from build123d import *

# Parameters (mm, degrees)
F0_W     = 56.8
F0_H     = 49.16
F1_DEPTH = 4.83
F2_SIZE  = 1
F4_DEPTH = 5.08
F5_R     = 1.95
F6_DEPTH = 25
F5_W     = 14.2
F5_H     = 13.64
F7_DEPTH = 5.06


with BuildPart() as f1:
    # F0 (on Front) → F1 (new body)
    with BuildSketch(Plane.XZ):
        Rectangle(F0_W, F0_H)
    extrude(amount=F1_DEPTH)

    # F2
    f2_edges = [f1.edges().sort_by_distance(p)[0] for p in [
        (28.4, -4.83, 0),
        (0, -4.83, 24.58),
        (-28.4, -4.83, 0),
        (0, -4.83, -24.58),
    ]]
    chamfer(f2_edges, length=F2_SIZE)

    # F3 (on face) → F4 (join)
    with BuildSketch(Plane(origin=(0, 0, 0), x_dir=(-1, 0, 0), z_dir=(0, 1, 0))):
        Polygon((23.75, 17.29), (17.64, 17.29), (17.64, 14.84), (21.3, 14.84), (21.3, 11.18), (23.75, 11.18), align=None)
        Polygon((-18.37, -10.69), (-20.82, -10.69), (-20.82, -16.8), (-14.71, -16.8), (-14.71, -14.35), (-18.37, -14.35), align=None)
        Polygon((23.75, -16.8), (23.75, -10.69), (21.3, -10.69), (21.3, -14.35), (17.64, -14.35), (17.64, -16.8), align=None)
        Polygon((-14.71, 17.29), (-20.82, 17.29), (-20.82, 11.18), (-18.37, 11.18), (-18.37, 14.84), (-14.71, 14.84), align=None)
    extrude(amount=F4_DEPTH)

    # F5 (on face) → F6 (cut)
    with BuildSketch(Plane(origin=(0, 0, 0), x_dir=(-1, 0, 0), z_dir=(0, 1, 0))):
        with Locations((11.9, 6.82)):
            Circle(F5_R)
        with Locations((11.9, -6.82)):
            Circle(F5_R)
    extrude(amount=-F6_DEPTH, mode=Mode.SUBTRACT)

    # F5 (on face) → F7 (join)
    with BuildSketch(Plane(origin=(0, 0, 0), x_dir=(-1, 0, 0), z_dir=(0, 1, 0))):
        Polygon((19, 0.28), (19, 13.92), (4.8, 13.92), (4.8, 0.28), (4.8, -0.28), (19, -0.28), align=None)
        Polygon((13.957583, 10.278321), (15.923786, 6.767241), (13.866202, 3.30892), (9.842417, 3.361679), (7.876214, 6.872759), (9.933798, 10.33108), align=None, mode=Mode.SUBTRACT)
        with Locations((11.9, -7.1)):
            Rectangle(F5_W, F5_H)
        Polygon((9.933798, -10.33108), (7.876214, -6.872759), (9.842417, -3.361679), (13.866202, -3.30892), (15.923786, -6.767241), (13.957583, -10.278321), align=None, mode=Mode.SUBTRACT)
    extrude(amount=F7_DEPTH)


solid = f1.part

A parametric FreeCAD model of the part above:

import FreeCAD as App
import Part
import Sketcher


def edges_at(feature, points):
    """Names of the edges that pass closest to the given points."""
    edges = feature.Shape.Edges
    near = lambda p: min(range(len(edges)), key=lambda i: edges[i].distToShape(Part.Vertex(*p))[0])
    return sorted({f"Edge{near(p) + 1}" for p in points})

doc = App.newDocument("Part")
body = doc.addObject("PartDesign::Body", "Body")

# Sketch on XZ plane
sketch1 = body.newObject("Sketcher::SketchObject", "Sketch")
sketch1.AttachmentSupport = (doc.getObject("XZ_Plane"), [""])
sketch1.MapMode = "FlatFace"
sketch1.addGeometry([
    Part.LineSegment(App.Vector(-28.4, 24.58, 0), App.Vector(-28.4, -24.58, 0)),
    Part.LineSegment(App.Vector(-28.4, -24.58, 0), App.Vector(28.4, -24.58, 0)),
    Part.LineSegment(App.Vector(28.4, -24.58, 0), App.Vector(28.4, 24.58, 0)),
    Part.LineSegment(App.Vector(28.4, 24.58, 0), App.Vector(-28.4, 24.58, 0)),
], False)
sketch1.addConstraint([
    Sketcher.Constraint("Coincident", 0, 2, 1, 1),
    Sketcher.Constraint("Coincident", 1, 2, 2, 1),
    Sketcher.Constraint("Coincident", 2, 2, 3, 1),
    Sketcher.Constraint("Coincident", 3, 2, 0, 1),
    Sketcher.Constraint("Vertical", 0),
    Sketcher.Constraint("Horizontal", 1),
    Sketcher.Constraint("Vertical", 2),
    Sketcher.Constraint("Horizontal", 3),
    Sketcher.Constraint("Symmetric", 0, 2, 2, 2, -1, 1),
    Sketcher.Constraint("DistanceX", 1, 1, 1, 2, 56.8),
    Sketcher.Constraint("DistanceY", 0, 2, 0, 1, 49.16),
])
pad1 = body.newObject("PartDesign::Pad", "Pad")
pad1.Profile = sketch1
pad1.Length = 4.83
doc.recompute()

chamfer = body.newObject("PartDesign::Chamfer", "Chamfer")
chamfer.Base = (pad1, edges_at(pad1, [
    (28.4, -4.83, 0),
    (0, -4.83, 24.58),
    (-28.4, -4.83, 0),
    (0, -4.83, -24.58),
]))
chamfer.Size = 1

# Sketch on XZ plane
sketch2 = body.newObject("Sketcher::SketchObject", "Sketch001")
sketch2.AttachmentSupport = (doc.getObject("XZ_Plane"), [""])
sketch2.MapMode = "FlatFace"
sketch2.addGeometry([
    Part.LineSegment(App.Vector(-23.75, 17.29, 0), App.Vector(-17.64, 17.29, 0)),  # 0
    Part.LineSegment(App.Vector(-17.64, 17.29, 0), App.Vector(-17.64, 14.84, 0)),  # 1
    Part.LineSegment(App.Vector(-17.64, 14.84, 0), App.Vector(-21.3, 14.84, 0)),  # 2
    Part.LineSegment(App.Vector(-21.3, 14.84, 0), App.Vector(-21.3, 11.18, 0)),  # 3
    Part.LineSegment(App.Vector(-21.3, 11.18, 0), App.Vector(-23.75, 11.18, 0)),  # 4
    Part.LineSegment(App.Vector(-23.75, 11.18, 0), App.Vector(-23.75, 17.29, 0)),  # 5
    Part.LineSegment(App.Vector(18.37, -10.69, 0), App.Vector(20.82, -10.69, 0)),  # 6
    Part.LineSegment(App.Vector(20.82, -10.69, 0), App.Vector(20.82, -16.8, 0)),  # 7
    Part.LineSegment(App.Vector(20.82, -16.8, 0), App.Vector(14.71, -16.8, 0)),  # 8
    Part.LineSegment(App.Vector(14.71, -16.8, 0), App.Vector(14.71, -14.35, 0)),  # 9
    Part.LineSegment(App.Vector(14.71, -14.35, 0), App.Vector(18.37, -14.35, 0)),  # 10
    Part.LineSegment(App.Vector(18.37, -14.35, 0), App.Vector(18.37, -10.69, 0)),  # 11
    Part.LineSegment(App.Vector(-23.75, -16.8, 0), App.Vector(-23.75, -10.69, 0)),  # 12
    Part.LineSegment(App.Vector(-23.75, -10.69, 0), App.Vector(-21.3, -10.69, 0)),  # 13
    Part.LineSegment(App.Vector(-21.3, -10.69, 0), App.Vector(-21.3, -14.35, 0)),  # 14
    Part.LineSegment(App.Vector(-21.3, -14.35, 0), App.Vector(-17.64, -14.35, 0)),  # 15
    Part.LineSegment(App.Vector(-17.64, -14.35, 0), App.Vector(-17.64, -16.8, 0)),  # 16
    Part.LineSegment(App.Vector(-17.64, -16.8, 0), App.Vector(-23.75, -16.8, 0)),  # 17
    Part.LineSegment(App.Vector(14.71, 17.29, 0), App.Vector(20.82, 17.29, 0)),  # 18
    Part.LineSegment(App.Vector(20.82, 17.29, 0), App.Vector(20.82, 11.18, 0)),  # 19
    Part.LineSegment(App.Vector(20.82, 11.18, 0), App.Vector(18.37, 11.18, 0)),  # 20
    Part.LineSegment(App.Vector(18.37, 11.18, 0), App.Vector(18.37, 14.84, 0)),  # 21
    Part.LineSegment(App.Vector(18.37, 14.84, 0), App.Vector(14.71, 14.84, 0)),  # 22
    Part.LineSegment(App.Vector(14.71, 14.84, 0), App.Vector(14.71, 17.29, 0)),  # 23
], False)
sketch2.addConstraint([
    Sketcher.Constraint("Coincident", 0, 2, 1, 1),
    Sketcher.Constraint("Coincident", 1, 2, 2, 1),
    Sketcher.Constraint("Coincident", 2, 2, 3, 1),
    Sketcher.Constraint("Coincident", 3, 2, 4, 1),
    Sketcher.Constraint("Coincident", 4, 2, 5, 1),
    Sketcher.Constraint("Coincident", 5, 2, 0, 1),
    Sketcher.Constraint("Coincident", 6, 2, 7, 1),
    Sketcher.Constraint("Coincident", 7, 2, 8, 1),
    Sketcher.Constraint("Coincident", 8, 2, 9, 1),
    Sketcher.Constraint("Coincident", 9, 2, 10, 1),
    Sketcher.Constraint("Coincident", 10, 2, 11, 1),
    Sketcher.Constraint("Coincident", 11, 2, 6, 1),
    Sketcher.Constraint("Coincident", 12, 2, 13, 1),
    Sketcher.Constraint("Coincident", 13, 2, 14, 1),
    Sketcher.Constraint("Coincident", 14, 2, 15, 1),
    Sketcher.Constraint("Coincident", 15, 2, 16, 1),
    Sketcher.Constraint("Coincident", 16, 2, 17, 1),
    Sketcher.Constraint("Coincident", 17, 2, 12, 1),
    Sketcher.Constraint("Coincident", 18, 2, 19, 1),
    Sketcher.Constraint("Coincident", 19, 2, 20, 1),
    Sketcher.Constraint("Coincident", 20, 2, 21, 1),
    Sketcher.Constraint("Coincident", 21, 2, 22, 1),
    Sketcher.Constraint("Coincident", 22, 2, 23, 1),
    Sketcher.Constraint("Coincident", 23, 2, 18, 1),
    Sketcher.Constraint("Horizontal", 0),
    Sketcher.Constraint("Vertical", 1),
    Sketcher.Constraint("Horizontal", 2),
    Sketcher.Constraint("Vertical", 3),
    Sketcher.Constraint("Horizontal", 4),
    Sketcher.Constraint("Vertical", 5),
    Sketcher.Constraint("Horizontal", 6),
    Sketcher.Constraint("Vertical", 7),
    Sketcher.Constraint("Horizontal", 8),
    Sketcher.Constraint("Vertical", 9),
    Sketcher.Constraint("Horizontal", 10),
    Sketcher.Constraint("Vertical", 11),
    Sketcher.Constraint("Vertical", 12),
    Sketcher.Constraint("Horizontal", 13),
    Sketcher.Constraint("Vertical", 14),
    Sketcher.Constraint("Horizontal", 15),
    Sketcher.Constraint("Vertical", 16),
    Sketcher.Constraint("Horizontal", 17),
    Sketcher.Constraint("Horizontal", 18),
    Sketcher.Constraint("Vertical", 19),
    Sketcher.Constraint("Horizontal", 20),
    Sketcher.Constraint("Vertical", 21),
    Sketcher.Constraint("Horizontal", 22),
    Sketcher.Constraint("Vertical", 23),
    Sketcher.Constraint("Horizontal", 11, 2, 12, 2),
    Sketcher.Constraint("Horizontal", 10, 2, 14, 2),
    Sketcher.Constraint("Horizontal", 8, 2, 16, 2),
    Sketcher.Constraint("Horizontal", 5, 2, 18, 2),
    Sketcher.Constraint("Horizontal", 4, 2, 19, 2),
    Sketcher.Constraint("Horizontal", 2, 2, 21, 2),
    Sketcher.Constraint("Vertical", 5, 2, 12, 2),
    Sketcher.Constraint("Vertical", 3, 2, 13, 2),
    Sketcher.Constraint("Vertical", 1, 2, 15, 2),
    Sketcher.Constraint("Vertical", 7, 2, 18, 2),
    Sketcher.Constraint("Vertical", 11, 2, 20, 2),
    Sketcher.Constraint("Vertical", 9, 2, 22, 2),
    Sketcher.Constraint("Equal", 4, 6),
    Sketcher.Constraint("Equal", 0, 8),
    Sketcher.Constraint("Equal", 20, 1),
    Sketcher.Constraint("Equal", 22, 3),
    Sketcher.Constraint("Equal", 5, 7),
    Sketcher.Constraint("Equal", 1, 9),
    Sketcher.Constraint("DistanceX", 0, 1, 0, 2, 6.11),
    Sketcher.Constraint("DistanceX", 2, 2, 2, 1, 3.66),
    Sketcher.Constraint("DistanceX", 2, 2, -1, 1, 21.3),
    Sketcher.Constraint("DistanceY", 7, 2, -1, 1, 16.8),
    Sketcher.Constraint("DistanceY", -1, 1, 0, 2, 17.29),
    Sketcher.Constraint("DistanceX", -1, 1, 6, 2, 20.82),
])
pad2 = body.newObject("PartDesign::Pad", "Pad001")
pad2.Profile = sketch2
pad2.Length = 5.08
pad2.Reversed = True

# Sketch on XZ plane
sketch3 = body.newObject("Sketcher::SketchObject", "Sketch002")
sketch3.AttachmentSupport = (doc.getObject("XZ_Plane"), [""])
sketch3.MapMode = "FlatFace"
sketch3.addGeometry([
    Part.Circle(App.Vector(-11.9, 6.82, 0), App.Vector(0, 0, 1), 1.95),
    Part.Circle(App.Vector(-11.9, -6.82, 0), App.Vector(0, 0, 1), 1.95),
], False)
sketch3.addConstraint([
    Sketcher.Constraint("Equal", 0, 1),
    Sketcher.Constraint("Symmetric", 0, 3, 1, 3, -1),
    Sketcher.Constraint("Diameter", 0, 3.9),
    Sketcher.Constraint("DistanceX", 0, 3, -1, 1, 11.9),
    Sketcher.Constraint("DistanceY", -1, 1, 0, 3, 6.82),
])
pocket1 = body.newObject("PartDesign::Pocket", "Pocket")
pocket1.Profile = sketch3
pocket1.Length = 25
pocket1.Reversed = True

# Sketch on XZ plane
sketch4 = body.newObject("Sketcher::SketchObject", "Sketch003")
sketch4.AttachmentSupport = (doc.getObject("XZ_Plane"), [""])
sketch4.MapMode = "FlatFace"
sketch4.addGeometry([
    Part.LineSegment(App.Vector(-19, 13.92, 0), App.Vector(-4.8, 13.92, 0)),  # 0
    Part.LineSegment(App.Vector(-4.8, 13.92, 0), App.Vector(-4.8, -13.92, 0)),  # 1
    Part.LineSegment(App.Vector(-4.8, -13.92, 0), App.Vector(-19, -13.92, 0)),  # 2
    Part.LineSegment(App.Vector(-19, -13.92, 0), App.Vector(-19, 13.92, 0)),  # 3
    Part.LineSegment(App.Vector(-13.957583, -10.278321, 0), App.Vector(-9.933798, -10.33108, 0)),  # 4
    Part.LineSegment(App.Vector(-9.933798, -10.33108, 0), App.Vector(-7.876214, -6.872759, 0)),  # 5
    Part.LineSegment(App.Vector(-7.876214, -6.872759, 0), App.Vector(-9.842417, -3.361679, 0)),  # 6
    Part.LineSegment(App.Vector(-9.842417, -3.361679, 0), App.Vector(-13.866202, -3.30892, 0)),  # 7
    Part.LineSegment(App.Vector(-13.866202, -3.30892, 0), App.Vector(-15.923786, -6.767241, 0)),  # 8
    Part.LineSegment(App.Vector(-15.923786, -6.767241, 0), App.Vector(-13.957583, -10.278321, 0)),  # 9
    Part.LineSegment(App.Vector(-9.933798, 10.33108, 0), App.Vector(-13.957583, 10.278321, 0)),  # 10
    Part.LineSegment(App.Vector(-13.957583, 10.278321, 0), App.Vector(-15.923786, 6.767241, 0)),  # 11
    Part.LineSegment(App.Vector(-15.923786, 6.767241, 0), App.Vector(-13.866202, 3.30892, 0)),  # 12
    Part.LineSegment(App.Vector(-13.866202, 3.30892, 0), App.Vector(-9.842417, 3.361679, 0)),  # 13
    Part.LineSegment(App.Vector(-9.842417, 3.361679, 0), App.Vector(-7.876214, 6.872759, 0)),  # 14
    Part.LineSegment(App.Vector(-7.876214, 6.872759, 0), App.Vector(-9.933798, 10.33108, 0)),  # 15
], False)
sketch4.addConstraint([
    Sketcher.Constraint("Coincident", 0, 2, 1, 1),
    Sketcher.Constraint("Coincident", 1, 2, 2, 1),
    Sketcher.Constraint("Coincident", 2, 2, 3, 1),
    Sketcher.Constraint("Coincident", 3, 2, 0, 1),
    Sketcher.Constraint("Coincident", 4, 2, 5, 1),
    Sketcher.Constraint("Coincident", 5, 2, 6, 1),
    Sketcher.Constraint("Coincident", 6, 2, 7, 1),
    Sketcher.Constraint("Coincident", 7, 2, 8, 1),
    Sketcher.Constraint("Coincident", 8, 2, 9, 1),
    Sketcher.Constraint("Coincident", 9, 2, 4, 1),
    Sketcher.Constraint("Coincident", 10, 2, 11, 1),
    Sketcher.Constraint("Coincident", 11, 2, 12, 1),
    Sketcher.Constraint("Coincident", 12, 2, 13, 1),
    Sketcher.Constraint("Coincident", 13, 2, 14, 1),
    Sketcher.Constraint("Coincident", 14, 2, 15, 1),
    Sketcher.Constraint("Coincident", 15, 2, 10, 1),
    Sketcher.Constraint("Horizontal", 0),
    Sketcher.Constraint("Vertical", 1),
    Sketcher.Constraint("Horizontal", 2),
    Sketcher.Constraint("Vertical", 3),
    Sketcher.Constraint("Symmetric", 9, 2, 10, 2, -1),
    Sketcher.Constraint("Symmetric", 8, 2, 11, 2, -1),
    Sketcher.Constraint("Symmetric", 7, 2, 12, 2, -1),
    Sketcher.Constraint("Symmetric", 6, 2, 13, 2, -1),
    Sketcher.Constraint("Symmetric", 5, 2, 14, 2, -1),
    Sketcher.Constraint("Symmetric", 4, 2, 15, 2, -1),
    Sketcher.Constraint("Parallel", 4, 7),
    Sketcher.Constraint("Parallel", 5, 8),
    Sketcher.Constraint("Parallel", 6, 9),
    Sketcher.Constraint("Equal", 4, 5),
    Sketcher.Constraint("Equal", 5, 6),
    Sketcher.Constraint("Equal", 6, 7),
    Sketcher.Constraint("DistanceX", 0, 1, 0, 2, 14.2),
    Sketcher.Constraint("DistanceX", 2, 2, -1, 1, 19.0),
    Sketcher.Constraint("DistanceY", 1, 2, 1, 1, 27.84),
    Sketcher.Constraint("DistanceY", -1, 1, 0, 2, 13.92),
    Sketcher.Constraint("DistanceY", 6, 2, 10, 2, 13.64),
    Sketcher.Constraint("DistanceY", 4, 2, 6, 2, 6.969401),
    Sketcher.Constraint("DistanceX", 2, 2, 7, 2, 5.133798),
    Sketcher.Constraint("Distance", 4, 4.024131),
    Sketcher.Constraint("DistanceY", 4, 2, -1, 1, 10.33108),
    Sketcher.Constraint("DistanceY", 5, 2, -1, 1, 6.872759),
])
pad3 = body.newObject("PartDesign::Pad", "Pad002")
pad3.Profile = sketch4
pad3.Length = 5.06
pad3.Reversed = True

doc.recompute()
